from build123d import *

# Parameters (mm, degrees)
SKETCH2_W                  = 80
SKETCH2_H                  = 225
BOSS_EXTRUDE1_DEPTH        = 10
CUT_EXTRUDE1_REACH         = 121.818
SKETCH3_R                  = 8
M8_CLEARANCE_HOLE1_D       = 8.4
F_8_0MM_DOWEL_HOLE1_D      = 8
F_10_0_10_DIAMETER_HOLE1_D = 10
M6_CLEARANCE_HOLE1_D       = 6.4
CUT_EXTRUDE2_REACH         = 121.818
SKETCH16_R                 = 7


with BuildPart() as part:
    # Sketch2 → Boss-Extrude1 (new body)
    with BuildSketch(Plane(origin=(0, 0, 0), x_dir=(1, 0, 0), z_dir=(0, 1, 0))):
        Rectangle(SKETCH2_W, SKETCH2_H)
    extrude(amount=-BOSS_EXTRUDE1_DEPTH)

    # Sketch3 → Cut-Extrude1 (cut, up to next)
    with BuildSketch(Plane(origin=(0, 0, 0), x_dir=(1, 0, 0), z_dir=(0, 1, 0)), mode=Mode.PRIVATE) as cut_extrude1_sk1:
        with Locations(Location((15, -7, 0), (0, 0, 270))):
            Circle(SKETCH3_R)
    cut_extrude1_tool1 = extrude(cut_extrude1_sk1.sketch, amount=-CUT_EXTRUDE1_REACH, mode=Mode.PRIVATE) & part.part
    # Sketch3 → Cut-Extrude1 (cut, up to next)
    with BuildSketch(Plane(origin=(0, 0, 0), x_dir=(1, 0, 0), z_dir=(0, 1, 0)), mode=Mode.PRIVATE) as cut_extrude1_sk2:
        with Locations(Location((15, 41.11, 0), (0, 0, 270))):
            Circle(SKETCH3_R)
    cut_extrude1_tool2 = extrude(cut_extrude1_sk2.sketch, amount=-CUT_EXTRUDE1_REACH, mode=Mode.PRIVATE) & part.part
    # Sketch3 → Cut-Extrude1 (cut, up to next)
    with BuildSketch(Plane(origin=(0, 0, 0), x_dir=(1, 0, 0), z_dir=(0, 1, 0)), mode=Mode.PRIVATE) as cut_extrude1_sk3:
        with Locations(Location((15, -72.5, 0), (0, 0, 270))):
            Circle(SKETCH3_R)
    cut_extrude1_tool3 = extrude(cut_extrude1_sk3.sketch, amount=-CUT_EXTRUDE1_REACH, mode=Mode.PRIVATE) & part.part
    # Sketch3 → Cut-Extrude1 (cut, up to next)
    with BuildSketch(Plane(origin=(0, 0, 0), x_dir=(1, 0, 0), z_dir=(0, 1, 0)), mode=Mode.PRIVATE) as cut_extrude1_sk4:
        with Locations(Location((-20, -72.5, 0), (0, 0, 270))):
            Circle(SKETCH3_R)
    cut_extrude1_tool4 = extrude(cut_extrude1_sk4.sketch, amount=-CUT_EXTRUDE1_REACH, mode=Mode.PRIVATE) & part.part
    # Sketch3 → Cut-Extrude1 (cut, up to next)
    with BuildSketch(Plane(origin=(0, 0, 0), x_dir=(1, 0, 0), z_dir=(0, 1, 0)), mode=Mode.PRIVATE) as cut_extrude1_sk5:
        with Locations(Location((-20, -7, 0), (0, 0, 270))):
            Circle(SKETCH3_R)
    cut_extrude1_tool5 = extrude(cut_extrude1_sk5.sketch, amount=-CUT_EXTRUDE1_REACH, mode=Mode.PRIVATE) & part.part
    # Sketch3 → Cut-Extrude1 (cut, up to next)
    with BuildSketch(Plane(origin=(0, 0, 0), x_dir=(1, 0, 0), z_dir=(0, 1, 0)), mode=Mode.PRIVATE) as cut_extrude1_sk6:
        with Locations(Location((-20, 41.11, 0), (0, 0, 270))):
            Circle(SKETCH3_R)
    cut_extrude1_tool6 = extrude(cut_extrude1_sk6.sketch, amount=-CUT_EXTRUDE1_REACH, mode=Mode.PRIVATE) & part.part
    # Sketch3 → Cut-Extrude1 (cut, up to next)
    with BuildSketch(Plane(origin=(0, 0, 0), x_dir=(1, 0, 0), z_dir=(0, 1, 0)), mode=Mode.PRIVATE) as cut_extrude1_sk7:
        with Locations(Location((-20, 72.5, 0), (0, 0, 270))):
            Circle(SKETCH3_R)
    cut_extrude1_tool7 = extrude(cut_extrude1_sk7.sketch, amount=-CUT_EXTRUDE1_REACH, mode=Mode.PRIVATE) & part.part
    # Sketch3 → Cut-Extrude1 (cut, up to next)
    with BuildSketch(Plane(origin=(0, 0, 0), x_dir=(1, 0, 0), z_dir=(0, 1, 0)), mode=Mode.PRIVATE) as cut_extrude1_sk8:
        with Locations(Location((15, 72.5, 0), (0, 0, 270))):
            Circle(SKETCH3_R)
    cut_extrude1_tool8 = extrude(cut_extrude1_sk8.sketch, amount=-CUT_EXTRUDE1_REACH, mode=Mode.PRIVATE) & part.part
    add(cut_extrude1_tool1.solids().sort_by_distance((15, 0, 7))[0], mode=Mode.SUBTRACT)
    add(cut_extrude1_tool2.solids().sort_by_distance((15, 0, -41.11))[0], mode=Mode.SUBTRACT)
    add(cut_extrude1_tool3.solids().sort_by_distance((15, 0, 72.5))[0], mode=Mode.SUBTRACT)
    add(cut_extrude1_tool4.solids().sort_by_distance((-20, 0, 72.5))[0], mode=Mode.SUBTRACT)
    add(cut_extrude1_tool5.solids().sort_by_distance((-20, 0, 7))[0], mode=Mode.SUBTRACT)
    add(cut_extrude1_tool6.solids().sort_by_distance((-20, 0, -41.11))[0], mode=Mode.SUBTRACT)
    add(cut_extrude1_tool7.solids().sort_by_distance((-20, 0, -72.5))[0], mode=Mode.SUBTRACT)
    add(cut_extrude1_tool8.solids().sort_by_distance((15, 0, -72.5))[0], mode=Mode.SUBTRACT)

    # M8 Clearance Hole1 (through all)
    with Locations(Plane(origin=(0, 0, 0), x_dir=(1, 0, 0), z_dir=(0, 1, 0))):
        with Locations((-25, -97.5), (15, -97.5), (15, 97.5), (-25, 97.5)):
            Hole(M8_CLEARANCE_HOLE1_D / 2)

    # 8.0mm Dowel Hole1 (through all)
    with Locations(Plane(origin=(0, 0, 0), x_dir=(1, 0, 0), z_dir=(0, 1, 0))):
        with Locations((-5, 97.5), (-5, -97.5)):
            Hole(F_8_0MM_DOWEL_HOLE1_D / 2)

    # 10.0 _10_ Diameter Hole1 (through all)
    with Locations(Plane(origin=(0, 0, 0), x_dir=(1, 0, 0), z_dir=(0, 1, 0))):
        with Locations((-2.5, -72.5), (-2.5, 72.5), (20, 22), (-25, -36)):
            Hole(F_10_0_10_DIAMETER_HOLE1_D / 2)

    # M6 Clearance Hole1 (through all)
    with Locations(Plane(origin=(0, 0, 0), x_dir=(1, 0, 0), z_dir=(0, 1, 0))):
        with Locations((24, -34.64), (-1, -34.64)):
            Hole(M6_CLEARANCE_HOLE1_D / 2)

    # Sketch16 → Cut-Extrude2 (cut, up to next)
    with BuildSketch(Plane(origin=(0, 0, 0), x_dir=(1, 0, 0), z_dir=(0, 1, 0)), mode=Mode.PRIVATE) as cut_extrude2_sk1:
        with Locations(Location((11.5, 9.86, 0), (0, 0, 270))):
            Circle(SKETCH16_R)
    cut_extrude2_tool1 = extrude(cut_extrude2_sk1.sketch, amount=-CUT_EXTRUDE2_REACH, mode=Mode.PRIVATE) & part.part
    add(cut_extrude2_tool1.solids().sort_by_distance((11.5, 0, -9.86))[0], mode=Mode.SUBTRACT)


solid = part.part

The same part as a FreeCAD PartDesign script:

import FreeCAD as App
import Part
import Sketcher

V = App.Vector


def add_polygon(sketch, points):
    """Adds a closed chain of lines whose ends are joined by coincident constraints."""
    first, n = sketch.GeometryCount, len(points)
    for a, b in zip(points, points[1:] + points[:1]):
        sketch.addGeometry(Part.LineSegment(App.Vector(*a, 0), App.Vector(*b, 0)), False)
    for i in range(n):
        sketch.addConstraint(Sketcher.Constraint("Coincident", first + i, 2, first + (i + 1) % n, 1))

doc = App.newDocument("Part")
params = doc.addObject("Spreadsheet::Sheet", "Params")
for row, (alias, value) in enumerate([
    ("sketch1_width", "80 mm"),
    ("sketch1_height", "225 mm"),
    ("pad1_length", "10 mm"),
    ("sketch2_diameter", "16 mm"),
    ("sketch3_diameter", "16 mm"),
    ("sketch4_diameter", "16 mm"),
    ("sketch5_diameter", "16 mm"),
    ("sketch6_diameter", "16 mm"),
    ("sketch7_diameter", "16 mm"),
    ("sketch8_diameter", "16 mm"),
    ("sketch9_diameter", "16 mm"),
    ("sketch10_diameter", "8.4 mm"),
    ("hole_diameter", "8.4 mm"),
    ("sketch11_diameter", "8 mm"),
    ("hole2_diameter", "8 mm"),
    ("sketch12_diameter", "10 mm"),
    ("hole3_diameter", "10 mm"),
    ("sketch13_diameter", "6.4 mm"),
    ("hole4_diameter", "6.4 mm"),
    ("sketch14_diameter", "14 mm"),
], start=1):
    params.set(f"A{row}", alias)
    params.set(f"B{row}", "=" + value)
    params.setAlias(f"B{row}", alias)

body = doc.addObject("PartDesign::Body", "Body")

# Sketch on XZ plane
sketch1 = doc.addObject("Sketcher::SketchObject", "Sketch")
body.addObject(sketch1)
sketch1.AttachmentSupport = (doc.XZ_Plane, [""])
sketch1.MapMode = "FlatFace"
add_polygon(sketch1, [(-40, -112), (-40, 112), (40, 112), (40, -112)])  # lines 0-3
sketch1.addConstraint(Sketcher.Constraint("Vertical", 0))
sketch1.addConstraint(Sketcher.Constraint("Horizontal", 1))
sketch1.addConstraint(Sketcher.Constraint("Vertical", 2))
sketch1.addConstraint(Sketcher.Constraint("Horizontal", 3))
sketch1.addConstraint(Sketcher.Constraint("Symmetric", 0, 2, 2, 2, -1, 1))
sketch1.addConstraint(Sketcher.Constraint("DistanceX", 1, 1, 1, 2, 80.0))
sketch1.addConstraint(Sketcher.Constraint("DistanceY", 0, 1, 0, 2, 225.0))
sketch1.setExpression("Constraints[9]", "Params.sketch1_width")
sketch1.setExpression("Constraints[10]", "Params.sketch1_height")
pad1 = doc.addObject("PartDesign::Pad", "Pad")
body.addObject(pad1)
pad1.Profile = sketch1
pad1.setExpression("Length", "Params.pad1_length")

# Sketch on XZ plane
sketch2 = doc.addObject("Sketcher::SketchObject", "Sketch001")
body.addObject(sketch2)
sketch2.AttachmentSupport = (doc.XZ_Plane, [""])
sketch2.MapMode = "FlatFace"
sketch2.addGeometry(Part.Circle(V(15, 7, 0), V(0, 0, 1), 8), False)
sketch2.addConstraint(Sketcher.Constraint("Diameter", 0, 16.0))
sketch2.addConstraint(Sketcher.Constraint("DistanceX", -1, 1, 0, 3, 15.0))
sketch2.addConstraint(Sketcher.Constraint("DistanceY", -1, 1, 0, 3, 7.0))
sketch2.setExpression("Constraints[0]", "Params.sketch2_diameter")
pocket1 = doc.addObject("PartDesign::Pocket", "Pocket")
body.addObject(pocket1)
pocket1.Profile = sketch2
pocket1.Type = "UpToFirst"
pocket1.Reversed = True

# Sketch on XZ plane
sketch3 = doc.addObject("Sketcher::SketchObject", "Sketch002")
body.addObject(sketch3)
sketch3.AttachmentSupport = (doc.XZ_Plane, [""])
sketch3.MapMode = "FlatFace"
sketch3.addGeometry(Part.Circle(V(15, -41, 0), V(0, 0, 1), 8), False)
sketch3.addConstraint(Sketcher.Constraint("Diameter", 0, 16.0))
sketch3.addConstraint(Sketcher.Constraint("DistanceX", -1, 1, 0, 3, 15.0))
sketch3.addConstraint(Sketcher.Constraint("DistanceY", 0, 3, -1, 1, 41.11))
sketch3.setExpression("Constraints[0]", "Params.sketch3_diameter")
pocket2 = doc.addObject("PartDesign::Pocket", "Pocket001")
body.addObject(pocket2)
pocket2.Profile = sketch3
pocket2.Type = "UpToFirst"
pocket2.Reversed = True

# Sketch on XZ plane
sketch4 = doc.addObject("Sketcher::SketchObject", "Sketch003")
body.addObject(sketch4)
sketch4.AttachmentSupport = (doc.XZ_Plane, [""])
sketch4.MapMode = "FlatFace"
sketch4.addGeometry(Part.Circle(V(15, 72, 0), V(0, 0, 1), 8), False)
sketch4.addConstraint(Sketcher.Constraint("Diameter", 0, 16.0))
sketch4.addConstraint(Sketcher.Constraint("DistanceX", -1, 1, 0, 3, 15.0))
sketch4.addConstraint(Sketcher.Constraint("DistanceY", -1, 1, 0, 3, 72.5))
sketch4.setExpression("Constraints[0]", "Params.sketch4_diameter")
pocket3 = doc.addObject("PartDesign::Pocket", "Pocket002")
body.addObject(pocket3)
pocket3.Profile = sketch4
pocket3.Type = "UpToFirst"
pocket3.Reversed = True

# Sketch on XZ plane
sketch5 = doc.addObject("Sketcher::SketchObject", "Sketch004")
body.addObject(sketch5)
sketch5.AttachmentSupport = (doc.XZ_Plane, [""])
sketch5.MapMode = "FlatFace"
sketch5.addGeometry(Part.Circle(V(-20, 72, 0), V(0, 0, 1), 8), False)
sketch5.addConstraint(Sketcher.Constraint("Diameter", 0, 16.0))
sketch5.addConstraint(Sketcher.Constraint("DistanceX", 0, 3, -1, 1, 20.0))
sketch5.addConstraint(Sketcher.Constraint("DistanceY", -1, 1, 0, 3, 72.5))
sketch5.setExpression("Constraints[0]", "Params.sketch5_diameter")
pocket4 = doc.addObject("PartDesign::Pocket", "Pocket003")
body.addObject(pocket4)
pocket4.Profile = sketch5
pocket4.Type = "UpToFirst"
pocket4.Reversed = True

# Sketch on XZ plane
sketch6 = doc.addObject("Sketcher::SketchObject", "Sketch005")
body.addObject(sketch6)
sketch6.AttachmentSupport = (doc.XZ_Plane, [""])
sketch6.MapMode = "FlatFace"
sketch6.addGeometry(Part.Circle(V(-20, 7, 0), V(0, 0, 1), 8), False)
sketch6.addConstraint(Sketcher.Constraint("Diameter", 0, 16.0))
sketch6.addConstraint(Sketcher.Constraint("DistanceX", 0, 3, -1, 1, 20.0))
sketch6.addConstraint(Sketcher.Constraint("DistanceY", -1, 1, 0, 3, 7.0))
sketch6.setExpression("Constraints[0]", "Params.sketch6_diameter")
pocket5 = doc.addObject("PartDesign::Pocket", "Pocket004")
body.addObject(pocket5)
pocket5.Profile = sketch6
pocket5.Type = "UpToFirst"
pocket5.Reversed = True

# Sketch on XZ plane
sketch7 = doc.addObject("Sketcher::SketchObject", "Sketch006")
body.addObject(sketch7)
sketch7.AttachmentSupport = (doc.XZ_Plane, [""])
sketch7.MapMode = "FlatFace"
sketch7.addGeometry(Part.Circle(V(-20, -41, 0), V(0, 0, 1), 8), False)
sketch7.addConstraint(Sketcher.Constraint("Diameter", 0, 16.0))
sketch7.addConstraint(Sketcher.Constraint("DistanceX", 0, 3, -1, 1, 20.0))
sketch7.addConstraint(Sketcher.Constraint("DistanceY", 0, 3, -1, 1, 41.11))
sketch7.setExpression("Constraints[0]", "Params.sketch7_diameter")
pocket6 = doc.addObject("PartDesign::Pocket", "Pocket005")
body.addObject(pocket6)
pocket6.Profile = sketch7
pocket6.Type = "UpToFirst"
pocket6.Reversed = True

# Sketch on XZ plane
sketch8 = doc.addObject("Sketcher::SketchObject", "Sketch007")
body.addObject(sketch8)
sketch8.AttachmentSupport = (doc.XZ_Plane, [""])
sketch8.MapMode = "FlatFace"
sketch8.addGeometry(Part.Circle(V(-20, -72, 0), V(0, 0, 1), 8), False)
sketch8.addConstraint(Sketcher.Constraint("Diameter", 0, 16.0))
sketch8.addConstraint(Sketcher.Constraint("DistanceX", 0, 3, -1, 1, 20.0))
sketch8.addConstraint(Sketcher.Constraint("DistanceY", 0, 3, -1, 1, 72.5))
sketch8.setExpression("Constraints[0]", "Params.sketch8_diameter")
pocket7 = doc.addObject("PartDesign::Pocket", "Pocket006")
body.addObject(pocket7)
pocket7.Profile = sketch8
pocket7.Type = "UpToFirst"
pocket7.Reversed = True

# Sketch on XZ plane
sketch9 = doc.addObject("Sketcher::SketchObject", "Sketch008")
body.addObject(sketch9)
sketch9.AttachmentSupport = (doc.XZ_Plane, [""])
sketch9.MapMode = "FlatFace"
sketch9.addGeometry(Part.Circle(V(15, -72, 0), V(0, 0, 1), 8), False)
sketch9.addConstraint(Sketcher.Constraint("Diameter", 0, 16.0))
sketch9.addConstraint(Sketcher.Constraint("DistanceX", -1, 1, 0, 3, 15.0))
sketch9.addConstraint(Sketcher.Constraint("DistanceY", 0, 3, -1, 1, 72.5))
sketch9.setExpression("Constraints[0]", "Params.sketch9_diameter")
pocket8 = doc.addObject("PartDesign::Pocket", "Pocket007")
body.addObject(pocket8)
pocket8.Profile = sketch9
pocket8.Type = "UpToFirst"
pocket8.Reversed = True

# Sketch on XZ plane
sketch10 = doc.addObject("Sketcher::SketchObject", "Sketch009")
body.addObject(sketch10)
sketch10.AttachmentSupport = (doc.XZ_Plane, [""])
sketch10.MapMode = "FlatFace"
sketch10.addGeometry(Part.Circle(V(-25, 97.5, 0), V(0, 0, 1), 4.2), False)
sketch10.addGeometry(Part.Circle(V(15, 97.5, 0), V(0, 0, 1), 4.2), False)
sketch10.addGeometry(Part.Circle(V(15, -97.5, 0), V(0, 0, 1), 4.2), False)
sketch10.addGeometry(Part.Circle(V(-25, -97.5, 0), V(0, 0, 1), 4.2), False)
sketch10.addConstraint(Sketcher.Constraint("Equal", 0, 1))
sketch10.addConstraint(Sketcher.Constraint("Equal", 1, 2))
sketch10.addConstraint(Sketcher.Constraint("Equal", 2, 3))
sketch10.addConstraint(Sketcher.Constraint("Symmetric", 1, 3, 2, 3, -1))
sketch10.addConstraint(Sketcher.Constraint("Symmetric", 0, 3, 3, 3, -1))
sketch10.addConstraint(Sketcher.Constraint("Horizontal", 0, 3, 1, 3))
sketch10.addConstraint(Sketcher.Constraint("Diameter", 0, 8.4))
sketch10.addConstraint(Sketcher.Constraint("DistanceX", 0, 3, -1, 1, 25.0))
sketch10.addConstraint(Sketcher.Constraint("DistanceX", -1, 1, 1, 3, 15.0))
sketch10.addConstraint(Sketcher.Constraint("DistanceY", 2, 3, 1, 3, 195.0))
sketch10.setExpression("Constraints[6]", "Params.sketch10_diameter")
doc.recompute()
hole = doc.addObject("PartDesign::Hole", "Hole")
body.addObject(hole)
hole.Profile = sketch10
hole.ThreadType = "None"
hole.setExpression("Diameter", "Params.hole_diameter")
hole.DepthType = "ThroughAll"
hole.Reversed = True

# Sketch on XZ plane
sketch11 = doc.addObject("Sketcher::SketchObject", "Sketch010")
body.addObject(sketch11)
sketch11.AttachmentSupport = (doc.XZ_Plane, [""])
sketch11.MapMode = "FlatFace"
sketch11.addGeometry(Part.Circle(V(-5, -97.5, 0), V(0, 0, 1), 4), False)
sketch11.addGeometry(Part.Circle(V(-5, 97.5, 0), V(0, 0, 1), 4), False)
sketch11.addConstraint(Sketcher.Constraint("Equal", 0, 1))
sketch11.addConstraint(Sketcher.Constraint("Symmetric", 0, 3, 1, 3, -1))
sketch11.addConstraint(Sketcher.Constraint("Diameter", 0, 8.0))
sketch11.addConstraint(Sketcher.Constraint("DistanceX", 0, 3, -1, 1, 5.0))
sketch11.addConstraint(Sketcher.Constraint("DistanceY", 0, 3, 1, 3, 195.0))
sketch11.setExpression("Constraints[2]", "Params.sketch11_diameter")
doc.recompute()
hole2 = doc.addObject("PartDesign::Hole", "Hole001")
body.addObject(hole2)
hole2.Profile = sketch11
hole2.ThreadType = "None"
hole2.setExpression("Diameter", "Params.hole2_diameter")
hole2.DepthType = "ThroughAll"
hole2.Reversed = True

# Sketch on XZ plane
sketch12 = doc.addObject("Sketcher::SketchObject", "Sketch011")
body.addObject(sketch12)
sketch12.AttachmentSupport = (doc.XZ_Plane, [""])
sketch12.MapMode = "FlatFace"
sketch12.addGeometry(Part.Circle(V(-2, 72, 0), V(0, 0, 1), 5), False)
sketch12.addGeometry(Part.Circle(V(-2, -72, 0), V(0, 0, 1), 5), False)
sketch12.addGeometry(Part.Circle(V(20, -22, 0), V(0, 0, 1), 5), False)
sketch12.addGeometry(Part.Circle(V(-25, 36, 0), V(0, 0, 1), 5), False)
sketch12.addConstraint(Sketcher.Constraint("Equal", 0, 1))
sketch12.addConstraint(Sketcher.Constraint("Equal", 1, 2))
sketch12.addConstraint(Sketcher.Constraint("Equal", 2, 3))
sketch12.addConstraint(Sketcher.Constraint("Symmetric", 0, 3, 1, 3, -1))
sketch12.addConstraint(Sketcher.Constraint("Diameter", 0, 10.0))
sketch12.addConstraint(Sketcher.Constraint("DistanceX", -1, 1, 2, 3, 20.0))
sketch12.addConstraint(Sketcher.Constraint("DistanceY", 2, 3, -1, 1, 22.0))
sketch12.addConstraint(Sketcher.Constraint("DistanceX", 3, 3, -1, 1, 25.0))
sketch12.addConstraint(Sketcher.Constraint("DistanceY", -1, 1, 3, 3, 36.0))
sketch12.addConstraint(Sketcher.Constraint("DistanceY", 1, 3, 0, 3, 145.0))
sketch12.addConstraint(Sketcher.Constraint("DistanceX", 0, 3, -1, 1, 2.5))
sketch12.setExpression("Constraints[4]", "Params.sketch12_diameter")
doc.recompute()
hole3 = doc.addObject("PartDesign::Hole", "Hole002")
body.addObject(hole3)
hole3.Profile = sketch12
hole3.ThreadType = "None"
hole3.setExpression("Diameter", "Params.hole3_diameter")
hole3.DepthType = "ThroughAll"
hole3.Reversed = True

# Sketch on XZ plane
sketch13 = doc.addObject("Sketcher::SketchObject", "Sketch012")
body.addObject(sketch13)
sketch13.AttachmentSupport = (doc.XZ_Plane, [""])
sketch13.MapMode = "FlatFace"
sketch13.addGeometry(Part.Circle(V(24, 34.6, 0), V(0, 0, 1), 3.2), False)
sketch13.addGeometry(Part.Circle(V(-1, 34.6, 0), V(0, 0, 1), 3.2), False)
sketch13.addConstraint(Sketcher.Constraint("Equal", 0, 1))
sketch13.addConstraint(Sketcher.Constraint("Horizontal", 0, 3, 1, 3))
sketch13.addConstraint(Sketcher.Constraint("Diameter", 0, 6.4))
sketch13.addConstraint(Sketcher.Constraint("DistanceX", -1, 1, 0, 3, 24.0))
sketch13.addConstraint(Sketcher.Constraint("DistanceX", 1, 3, -1, 1, 1.0))
sketch13.addConstraint(Sketcher.Constraint("DistanceY", -1, 1, 0, 3, 34.64))
sketch13.setExpression("Constraints[2]", "Params.sketch13_diameter")
doc.recompute()
hole4 = doc.addObject("PartDesign::Hole", "Hole003")
body.addObject(hole4)
hole4.Profile = sketch13
hole4.ThreadType = "None"
hole4.setExpression("Diameter", "Params.hole4_diameter")
hole4.DepthType = "ThroughAll"
hole4.Reversed = True

# Sketch on XZ plane
sketch14 = doc.addObject("Sketcher::SketchObject", "Sketch013")
body.addObject(sketch14)
sketch14.AttachmentSupport = (doc.XZ_Plane, [""])
sketch14.MapMode = "FlatFace"
sketch14.addGeometry(Part.Circle(V(12, -10, 0), V(0, 0, 1), 7), False)
sketch14.addConstraint(Sketcher.Constraint("Diameter", 0, 14.0))
sketch14.addConstraint(Sketcher.Constraint("DistanceX", -1, 1, 0, 3, 11.5))
sketch14.addConstraint(Sketcher.Constraint("DistanceY", 0, 3, -1, 1, 9.86))
sketch14.setExpression("Constraints[0]", "Params.sketch14_diameter")
pocket9 = doc.addObject("PartDesign::Pocket", "Pocket008")
body.addObject(pocket9)
pocket9.Profile = sketch14
pocket9.Type = "UpToFirst"
pocket9.Reversed = True

doc.recompute()
